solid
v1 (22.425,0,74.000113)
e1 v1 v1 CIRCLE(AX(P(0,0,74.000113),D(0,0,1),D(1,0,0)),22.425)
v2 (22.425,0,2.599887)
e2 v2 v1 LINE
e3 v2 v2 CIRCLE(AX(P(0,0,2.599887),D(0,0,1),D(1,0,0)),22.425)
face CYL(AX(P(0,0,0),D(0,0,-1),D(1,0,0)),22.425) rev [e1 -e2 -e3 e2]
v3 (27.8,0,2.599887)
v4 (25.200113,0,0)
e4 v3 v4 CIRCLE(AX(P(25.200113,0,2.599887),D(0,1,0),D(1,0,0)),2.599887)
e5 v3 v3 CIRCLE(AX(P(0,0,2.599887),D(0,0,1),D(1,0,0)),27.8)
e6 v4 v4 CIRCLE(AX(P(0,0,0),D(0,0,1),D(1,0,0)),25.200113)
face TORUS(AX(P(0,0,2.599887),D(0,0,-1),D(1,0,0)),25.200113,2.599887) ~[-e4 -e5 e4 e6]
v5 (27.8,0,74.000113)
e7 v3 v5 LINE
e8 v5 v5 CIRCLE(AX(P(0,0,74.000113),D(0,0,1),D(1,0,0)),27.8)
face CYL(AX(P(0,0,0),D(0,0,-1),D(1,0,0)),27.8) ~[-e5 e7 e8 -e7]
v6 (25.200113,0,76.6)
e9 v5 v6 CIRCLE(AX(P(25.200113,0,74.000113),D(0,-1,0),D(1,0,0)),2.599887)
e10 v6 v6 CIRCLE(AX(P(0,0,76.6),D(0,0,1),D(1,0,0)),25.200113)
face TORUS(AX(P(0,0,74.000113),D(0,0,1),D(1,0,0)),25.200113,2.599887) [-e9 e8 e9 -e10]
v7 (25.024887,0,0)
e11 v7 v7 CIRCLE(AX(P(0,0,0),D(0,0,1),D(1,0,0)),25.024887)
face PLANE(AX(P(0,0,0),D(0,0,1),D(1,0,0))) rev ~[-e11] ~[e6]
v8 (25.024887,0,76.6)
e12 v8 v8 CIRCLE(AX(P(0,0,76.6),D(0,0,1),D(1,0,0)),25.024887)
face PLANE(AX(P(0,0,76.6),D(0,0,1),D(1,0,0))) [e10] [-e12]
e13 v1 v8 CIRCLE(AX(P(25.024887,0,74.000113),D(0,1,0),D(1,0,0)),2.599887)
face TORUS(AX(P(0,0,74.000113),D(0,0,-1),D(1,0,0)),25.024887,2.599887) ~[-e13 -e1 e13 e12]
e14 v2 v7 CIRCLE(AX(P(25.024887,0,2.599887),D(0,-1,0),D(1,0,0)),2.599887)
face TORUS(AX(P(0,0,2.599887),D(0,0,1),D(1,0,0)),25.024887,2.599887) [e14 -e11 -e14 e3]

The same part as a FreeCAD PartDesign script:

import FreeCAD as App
import Part
import Sketcher

V = App.Vector


def edges_at(feature, points):
    """Names of the edges that pass closest to the given points."""
    edges = feature.Shape.Edges
    near = lambda p: min(range(len(edges)), key=lambda i: edges[i].distToShape(Part.Vertex(*p))[0])
    return sorted({f"Edge{near(p) + 1}" for p in points})

doc = App.newDocument("Part")
body = doc.addObject("PartDesign::Body", "Body")

# Sketch on XY plane
sketch1 = body.newObject("Sketcher::SketchObject", "Sketch")
sketch1.AttachmentSupport = (doc.getObject("XY_Plane"), [""])
sketch1.MapMode = "FlatFace"
sketch1.addGeometry(Part.Circle(V(0, 0, 0), V(0, 0, 1), 28), False)
sketch1.addGeometry(Part.Circle(V(0, 0, 0), V(0, 0, 1), 22), False)
sketch1.addConstraint(Sketcher.Constraint("Coincident", 0, 3, -1, 1))
sketch1.addConstraint(Sketcher.Constraint("Coincident", 1, 3, -1, 1))
sketch1.addConstraint(Sketcher.Constraint("Diameter", 0, 55.6))
sketch1.addConstraint(Sketcher.Constraint("Diameter", 1, 44.85))
pad1 = body.newObject("PartDesign::Pad", "Pad")
pad1.Profile = sketch1
pad1.Length = 76.6
doc.recompute()

fillet = body.newObject("PartDesign::Fillet", "Fillet")
fillet.Base = (pad1, edges_at(pad1, [
    (-27.8, 0, 76.6),
    (-22.425, 0, 76.6),
    (-27.8, 0, 0),
    (-22.425, 0, 0),
]))
fillet.Radius = 2.599887

doc.recompute()
